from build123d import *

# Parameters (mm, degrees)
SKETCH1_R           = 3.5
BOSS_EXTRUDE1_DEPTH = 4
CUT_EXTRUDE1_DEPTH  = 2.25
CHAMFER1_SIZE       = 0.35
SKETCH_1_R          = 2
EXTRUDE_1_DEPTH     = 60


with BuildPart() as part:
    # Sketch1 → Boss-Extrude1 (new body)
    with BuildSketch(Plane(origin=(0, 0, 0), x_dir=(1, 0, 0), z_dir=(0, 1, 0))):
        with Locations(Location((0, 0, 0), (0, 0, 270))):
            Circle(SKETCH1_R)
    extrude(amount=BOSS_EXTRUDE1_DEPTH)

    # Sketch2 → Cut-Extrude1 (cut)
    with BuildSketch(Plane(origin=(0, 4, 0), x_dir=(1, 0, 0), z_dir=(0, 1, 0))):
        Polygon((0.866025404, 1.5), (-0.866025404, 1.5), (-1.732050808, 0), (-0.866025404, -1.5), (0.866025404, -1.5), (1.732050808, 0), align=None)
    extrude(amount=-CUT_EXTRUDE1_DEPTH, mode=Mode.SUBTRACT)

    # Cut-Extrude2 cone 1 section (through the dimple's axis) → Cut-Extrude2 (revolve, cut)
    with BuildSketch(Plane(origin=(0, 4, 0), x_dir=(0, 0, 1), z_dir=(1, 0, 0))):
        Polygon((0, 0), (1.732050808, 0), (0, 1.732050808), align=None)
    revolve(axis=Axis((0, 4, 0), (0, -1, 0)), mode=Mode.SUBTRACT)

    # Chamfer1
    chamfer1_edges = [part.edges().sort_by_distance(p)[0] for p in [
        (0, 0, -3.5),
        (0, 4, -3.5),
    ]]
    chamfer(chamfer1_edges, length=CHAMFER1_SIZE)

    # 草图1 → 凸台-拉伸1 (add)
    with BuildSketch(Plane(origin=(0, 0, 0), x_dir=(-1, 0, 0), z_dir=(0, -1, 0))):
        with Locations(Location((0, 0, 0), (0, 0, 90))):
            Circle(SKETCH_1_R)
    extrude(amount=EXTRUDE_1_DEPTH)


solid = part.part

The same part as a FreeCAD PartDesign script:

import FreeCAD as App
import Part
import Sketcher
from FreeCAD import Vector
Q = App.Units.Quantity


def edges_at(feature, points):
    """Names of the edges that pass closest to the given points."""
    edges = feature.Shape.Edges
    near = lambda p: min(range(len(edges)), key=lambda i: edges[i].distToShape(Part.Vertex(*p))[0])
    return sorted({f"Edge{near(p) + 1}" for p in points})


def add_polygon(sketch, points):
    """Adds a closed chain of lines whose ends are joined by coincident constraints."""
    first, n = sketch.GeometryCount, len(points)
    for a, b in zip(points, points[1:] + points[:1]):
        sketch.addGeometry(Part.LineSegment(App.Vector(*a, 0), App.Vector(*b, 0)), False)
    for i in range(n):
        sketch.addConstraint(Sketcher.Constraint("Coincident", first + i, 2, first + (i + 1) % n, 1))

doc = App.newDocument("Part")
body = doc.addObject("PartDesign::Body", "Body")

# Sketch on XZ plane
sketch1 = body.newObject("Sketcher::SketchObject", "Sketch")
sketch1.AttachmentSupport = (doc.getObject("XZ_Plane"), [""])
sketch1.MapMode = "FlatFace"
sketch1.addGeometry(Part.Circle(Vector(0, 0, 0), Vector(0, 0, 1), 3.5), False)
sketch1.addConstraint(Sketcher.Constraint("Coincident", 0, 3, -1, 1))
sketch1.addConstraint(Sketcher.Constraint("Diameter", 0, 7.0))
pad1 = body.newObject("PartDesign::Pad", "Pad")
pad1.Profile = sketch1
pad1.Length = 4
pad1.Reversed = True

# Sketch on XZ plane
sketch2 = body.newObject("Sketcher::SketchObject", "Sketch001")
sketch2.AttachmentSupport = (doc.getObject("XZ_Plane"), [""])
sketch2.MapMode = "FlatFace"
sketch2.AttachmentOffset = App.Placement(Vector(0, 0, -4), App.Rotation())
add_polygon(sketch2, [(0.9, -1.5), (-0.9, -1.5), (-1.7, 0), (-0.9, 1.5), (0.9, 1.5), (1.7, 0)])  # lines 0-5
sketch2.addConstraint(Sketcher.Constraint("Horizontal", 0))
sketch2.addConstraint(Sketcher.Constraint("Horizontal", 3))
sketch2.addConstraint(Sketcher.Constraint("Symmetric", 0, 2, 3, 2, -1, 1))
sketch2.addConstraint(Sketcher.Constraint("Symmetric", 1, 2, 4, 2, -1, 1))
sketch2.addConstraint(Sketcher.Constraint("PointOnObject", 1, 2, -1))
sketch2.addConstraint(Sketcher.Constraint("Parallel", 2, 5))
sketch2.addConstraint(Sketcher.Constraint("Vertical", 0, 2, 2, 2))
sketch2.addConstraint(Sketcher.Constraint("Angle", 1, Q("120 deg")))
sketch2.addConstraint(Sketcher.Constraint("DistanceY", 0, 2, 2, 2, 3.0))
sketch2.addConstraint(Sketcher.Constraint("DistanceX", 0, 2, 0, 1, 1.732051))
pocket1 = body.newObject("PartDesign::Pocket", "Pocket")
pocket1.Profile = sketch2
pocket1.Length = 2.25
pocket1.Reversed = True

# Sketch on YZ plane
sketch3 = body.newObject("Sketcher::SketchObject", "Sketch002")
sketch3.AttachmentSupport = (doc.getObject("YZ_Plane"), [""])
sketch3.MapMode = "FlatFace"
add_polygon(sketch3, [(4, 0), (4, 1.7), (2.3, 0)])  # lines 0-2
sketch3.addConstraint(Sketcher.Constraint("Vertical", 0))
sketch3.addConstraint(Sketcher.Constraint("Horizontal", 2))
sketch3.addConstraint(Sketcher.Constraint("PointOnObject", 1, 2, -1))
sketch3.addConstraint(Sketcher.Constraint("Equal", 2, 0))
sketch3.addConstraint(Sketcher.Constraint("DistanceX", -1, 1, 0, 2, 4.0))
sketch3.addConstraint(Sketcher.Constraint("DistanceX", 2, 1, 2, 2, 1.732051))
groove = body.newObject("PartDesign::Groove", "Groove")
groove.Profile = sketch3
groove.ReferenceAxis = (sketch3, ["H_Axis"])
groove.Angle = 360
doc.recompute()

chamfer = body.newObject("PartDesign::Chamfer", "Chamfer")
chamfer.Base = (groove, edges_at(groove, [(0, 0, -3.5), (0, 4, -3.5)]))
chamfer.Size = 0.35

# Sketch on XZ plane
sketch4 = body.newObject("Sketcher::SketchObject", "Sketch003")
sketch4.AttachmentSupport = (doc.getObject("XZ_Plane"), [""])
sketch4.MapMode = "FlatFace"
sketch4.addGeometry(Part.Circle(Vector(0, 0, 0), Vector(0, 0, 1), 2), False)
sketch4.addConstraint(Sketcher.Constraint("Coincident", 0, 3, -1, 1))
sketch4.addConstraint(Sketcher.Constraint("Diameter", 0, 4.0))
pad2 = body.newObject("PartDesign::Pad", "Pad001")
pad2.Profile = sketch4
pad2.Length = 60

doc.recompute()
